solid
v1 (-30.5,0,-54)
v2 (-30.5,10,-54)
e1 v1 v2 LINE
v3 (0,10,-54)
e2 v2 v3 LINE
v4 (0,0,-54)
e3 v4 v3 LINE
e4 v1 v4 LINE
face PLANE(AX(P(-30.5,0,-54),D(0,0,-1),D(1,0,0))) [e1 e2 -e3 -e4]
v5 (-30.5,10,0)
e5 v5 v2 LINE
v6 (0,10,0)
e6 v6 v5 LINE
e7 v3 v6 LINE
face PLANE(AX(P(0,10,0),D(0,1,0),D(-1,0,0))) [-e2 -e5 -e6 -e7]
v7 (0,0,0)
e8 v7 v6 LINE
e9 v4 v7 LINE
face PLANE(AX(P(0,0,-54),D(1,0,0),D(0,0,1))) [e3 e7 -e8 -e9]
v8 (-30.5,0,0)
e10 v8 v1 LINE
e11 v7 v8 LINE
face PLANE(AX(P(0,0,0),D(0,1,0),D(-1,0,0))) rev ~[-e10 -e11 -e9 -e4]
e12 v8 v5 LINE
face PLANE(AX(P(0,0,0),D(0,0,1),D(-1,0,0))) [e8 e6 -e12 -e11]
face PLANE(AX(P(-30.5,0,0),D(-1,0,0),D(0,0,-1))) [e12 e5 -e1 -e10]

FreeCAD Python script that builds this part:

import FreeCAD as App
import Part
import Sketcher

V = App.Vector

doc = App.newDocument("Part")
params = doc.addObject("Spreadsheet::Sheet", "Params")
for row, (alias, value) in enumerate([
    ("sketch1_height", "54 mm"),
    ("sketch1_width", "30.5 mm"),
    ("pad1_length", "10 mm"),
], start=1):
    params.set(f"A{row}", alias)
    params.set(f"B{row}", "=" + value)
    params.setAlias(f"B{row}", alias)

body = doc.addObject("PartDesign::Body", "Body")

# Sketch on XZ plane
sketch1 = body.newObject("Sketcher::SketchObject", "Sketch")
sketch1.AttachmentSupport = (doc.getObject("XZ_Plane"), [""])
sketch1.MapMode = "FlatFace"
sketch1.addGeometry([
    Part.LineSegment(V(-30, 0, 0), V(0, 0, 0)),
    Part.LineSegment(V(0, 0, 0), V(0, -54, 0)),
    Part.LineSegment(V(0, -54, 0), V(-30, -54, 0)),
    Part.LineSegment(V(-30, -54, 0), V(-30, 0, 0)),
], False)
sketch1.addConstraint([
    Sketcher.Constraint("Coincident", 0, 2, 1, 1),
    Sketcher.Constraint("Coincident", 1, 2, 2, 1),
    Sketcher.Constraint("Coincident", 2, 2, 3, 1),
    Sketcher.Constraint("Coincident", 3, 2, 0, 1),
    Sketcher.Constraint("Horizontal", 0),
    Sketcher.Constraint("Vertical", 1),
    Sketcher.Constraint("Horizontal", 2),
    Sketcher.Constraint("Vertical", 3),
    Sketcher.Constraint("Coincident", 0, 2, -1, 1),
    Sketcher.Constraint("DistanceY", 1, 2, 1, 1, 54.0),
    Sketcher.Constraint("DistanceX", 0, 1, 0, 2, 30.5),
])
sketch1.setExpression("Constraints[9]", "Params.sketch1_height")
sketch1.setExpression("Constraints[10]", "Params.sketch1_width")
pad1 = body.newObject("PartDesign::Pad", "Pad")
pad1.Profile = sketch1
pad1.setExpression("Length", "Params.pad1_length")
pad1.Reversed = True

doc.recompute()
